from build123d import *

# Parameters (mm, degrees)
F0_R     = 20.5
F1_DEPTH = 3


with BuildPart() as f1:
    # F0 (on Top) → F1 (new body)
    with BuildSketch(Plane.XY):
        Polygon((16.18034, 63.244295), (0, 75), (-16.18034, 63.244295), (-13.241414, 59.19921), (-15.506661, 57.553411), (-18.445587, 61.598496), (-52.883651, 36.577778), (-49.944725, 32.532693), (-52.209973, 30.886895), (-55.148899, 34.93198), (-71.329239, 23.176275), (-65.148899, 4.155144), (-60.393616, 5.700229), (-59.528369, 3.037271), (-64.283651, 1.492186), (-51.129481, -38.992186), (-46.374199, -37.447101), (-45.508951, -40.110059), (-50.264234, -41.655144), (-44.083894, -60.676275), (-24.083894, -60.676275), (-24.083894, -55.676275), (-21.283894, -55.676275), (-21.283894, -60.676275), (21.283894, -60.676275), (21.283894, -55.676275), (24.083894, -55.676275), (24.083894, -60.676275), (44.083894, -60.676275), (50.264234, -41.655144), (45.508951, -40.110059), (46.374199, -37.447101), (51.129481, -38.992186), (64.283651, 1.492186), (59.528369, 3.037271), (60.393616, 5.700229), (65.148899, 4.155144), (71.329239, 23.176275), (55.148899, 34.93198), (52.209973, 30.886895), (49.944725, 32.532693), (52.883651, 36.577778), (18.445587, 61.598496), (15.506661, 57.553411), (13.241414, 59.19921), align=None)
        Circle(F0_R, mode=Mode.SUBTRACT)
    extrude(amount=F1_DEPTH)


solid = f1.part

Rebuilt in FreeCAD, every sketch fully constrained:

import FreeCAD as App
import Part
import Sketcher
from FreeCAD import Vector
Q = App.Units.Quantity


def add_polygon(sketch, points):
    """Adds a closed chain of lines whose ends are joined by coincident constraints."""
    first, n = sketch.GeometryCount, len(points)
    for a, b in zip(points, points[1:] + points[:1]):
        sketch.addGeometry(Part.LineSegment(App.Vector(*a, 0), App.Vector(*b, 0)), False)
    for i in range(n):
        sketch.addConstraint(Sketcher.Constraint("Coincident", first + i, 2, first + (i + 1) % n, 1))

doc = App.newDocument("Part")
body = doc.addObject("PartDesign::Body", "Body")

sketch1 = body.newObject("Sketcher::SketchObject", "Sketch")
sketch1.AttachmentSupport = (doc.getObject("XY_Plane"), [""])
sketch1.MapMode = "FlatFace"
add_polygon(sketch1, [(16.2, 63.2), (0, 75), (-16.2, 63.2), (-13.2, 59.2), (-15.5, 57.6), (-18.4, 61.6), (-52.9, 36.6), (-49.9, 32.5), (-52.2, 30.9), (-55.1, 34.9), (-71.3, 23.2), (-65.1, 4.2), (-60.4, 5.7), (-59.5, 3), (-64.3, 1.5), (-51.1, -39), (-46.4, -37.4), (-45.5, -40.1), (-50.3, -41.7), (-44.1, -60.7), (-24.1, -60.7), (-24.1, -55.7), (-21.3, -55.7), (-21.3, -60.7), (21.3, -60.7), (21.3, -55.7), (24.1, -55.7), (24.1, -60.7), (44.1, -60.7), (50.3, -41.7), (45.5, -40.1), (46.4, -37.4), (51.1, -39), (64.3, 1.5), (59.5, 3), (60.4, 5.7), (65.1, 4.2), (71.3, 23.2), (55.1, 34.9), (52.2, 30.9), (49.9, 32.5), (52.9, 36.6), (18.4, 61.6), (15.5, 57.6), (13.2, 59.2)])
sketch1.addGeometry(Part.Circle(Vector(0, 0, 0), Vector(0, 0, 1), 20.5), False)
sketch1.addConstraint([
    Sketcher.Constraint("Horizontal", 19),
    Sketcher.Constraint("Vertical", 20),
    Sketcher.Constraint("Horizontal", 21),
    Sketcher.Constraint("Vertical", 22),
    Sketcher.Constraint("Horizontal", 23),
    Sketcher.Constraint("Vertical", 24),
    Sketcher.Constraint("Horizontal", 25),
    Sketcher.Constraint("Vertical", 26),
    Sketcher.Constraint("Horizontal", 27),
    Sketcher.Constraint("Coincident", 45, 3, -1, 1),
    Sketcher.Constraint("Symmetric", 21, 2, 24, 2, -2),
    Sketcher.Constraint("Symmetric", 19, 2, 26, 2, -2),
    Sketcher.Constraint("Symmetric", 17, 2, 28, 2, -2),
    Sketcher.Constraint("Symmetric", 16, 2, 29, 2, -2),
    Sketcher.Constraint("Symmetric", 15, 2, 30, 2, -2),
    Sketcher.Constraint("Symmetric", 14, 2, 31, 2, -2),
    Sketcher.Constraint("Symmetric", 13, 2, 32, 2, -2),
    Sketcher.Constraint("Symmetric", 12, 2, 33, 2, -2),
    Sketcher.Constraint("Symmetric", 11, 2, 34, 2, -2),
    Sketcher.Constraint("Symmetric", 10, 2, 35, 2, -2),
    Sketcher.Constraint("Symmetric", 9, 2, 36, 2, -2),
    Sketcher.Constraint("Symmetric", 8, 2, 37, 2, -2),
    Sketcher.Constraint("Symmetric", 7, 2, 38, 2, -2),
    Sketcher.Constraint("Symmetric", 6, 2, 39, 2, -2),
    Sketcher.Constraint("Symmetric", 5, 2, 40, 2, -2),
    Sketcher.Constraint("Symmetric", 4, 2, 41, 2, -2),
    Sketcher.Constraint("Symmetric", 3, 2, 42, 2, -2),
    Sketcher.Constraint("Symmetric", 2, 2, 43, 2, -2),
    Sketcher.Constraint("Symmetric", 1, 2, 44, 2, -2),
    Sketcher.Constraint("PointOnObject", 0, 2, -2),
    Sketcher.Constraint("Perpendicular", 1, 2),
    Sketcher.Constraint("Perpendicular", 2, 3),
    Sketcher.Constraint("Perpendicular", 3, 4),
    Sketcher.Constraint("Perpendicular", 4, 5),
    Sketcher.Constraint("Perpendicular", 5, 6),
    Sketcher.Constraint("Perpendicular", 6, 7),
    Sketcher.Constraint("Perpendicular", 7, 8),
    Sketcher.Constraint("Perpendicular", 8, 9),
    Sketcher.Constraint("Perpendicular", 10, 11),
    Sketcher.Constraint("Perpendicular", 11, 12),
    Sketcher.Constraint("Perpendicular", 12, 13),
    Sketcher.Constraint("Perpendicular", 13, 14),
    Sketcher.Constraint("Perpendicular", 14, 15),
    Sketcher.Constraint("Perpendicular", 15, 16),
    Sketcher.Constraint("Perpendicular", 16, 17),
    Sketcher.Constraint("Perpendicular", 17, 18),
    Sketcher.Constraint("Perpendicular", 28, 29),
    Sketcher.Constraint("Horizontal", 19, 2, 22, 2),
    Sketcher.Constraint("Equal", 2, 4),
    Sketcher.Constraint("Equal", 4, 6),
    Sketcher.Constraint("Equal", 3, 7),
    Sketcher.Constraint("Equal", 6, 8),
    Sketcher.Constraint("Equal", 1, 9),
    Sketcher.Constraint("Equal", 9, 10),
    Sketcher.Constraint("Equal", 8, 11),
    Sketcher.Constraint("Equal", 7, 12),
    Sketcher.Constraint("Equal", 11, 13),
    Sketcher.Constraint("Equal", 5, 14),
    Sketcher.Constraint("Equal", 13, 15),
    Sketcher.Constraint("Equal", 12, 16),
    Sketcher.Constraint("Equal", 15, 17),
    Sketcher.Constraint("Equal", 10, 18),
    Sketcher.Constraint("Diameter", 45, 41.0),
    Sketcher.Constraint("DistanceX", 19, 1, 19, 2, 20.0),
    Sketcher.Constraint("DistanceY", 20, 1, 20, 2, 5.0),
    Sketcher.Constraint("Angle", 0, Q("144 deg")),
    Sketcher.Constraint("Angle", 10, Q("-72 deg")),
    Sketcher.Constraint("Distance", 0, 20.0),
    Sketcher.Constraint("Distance", 2, 5.0),
    Sketcher.Constraint("DistanceX", 21, 1, 21, 2, 2.8),
    Sketcher.Constraint("DistanceY", -1, 1, 0, 2, 75.0),
    Sketcher.Constraint("Distance", 3, 2.8),
    Sketcher.Constraint("DistanceX", 8, 2, -1, 1, 55.148899),
])
pad1 = body.newObject("PartDesign::Pad", "Pad")
pad1.Profile = sketch1
pad1.Length = 3

doc.recompute()
